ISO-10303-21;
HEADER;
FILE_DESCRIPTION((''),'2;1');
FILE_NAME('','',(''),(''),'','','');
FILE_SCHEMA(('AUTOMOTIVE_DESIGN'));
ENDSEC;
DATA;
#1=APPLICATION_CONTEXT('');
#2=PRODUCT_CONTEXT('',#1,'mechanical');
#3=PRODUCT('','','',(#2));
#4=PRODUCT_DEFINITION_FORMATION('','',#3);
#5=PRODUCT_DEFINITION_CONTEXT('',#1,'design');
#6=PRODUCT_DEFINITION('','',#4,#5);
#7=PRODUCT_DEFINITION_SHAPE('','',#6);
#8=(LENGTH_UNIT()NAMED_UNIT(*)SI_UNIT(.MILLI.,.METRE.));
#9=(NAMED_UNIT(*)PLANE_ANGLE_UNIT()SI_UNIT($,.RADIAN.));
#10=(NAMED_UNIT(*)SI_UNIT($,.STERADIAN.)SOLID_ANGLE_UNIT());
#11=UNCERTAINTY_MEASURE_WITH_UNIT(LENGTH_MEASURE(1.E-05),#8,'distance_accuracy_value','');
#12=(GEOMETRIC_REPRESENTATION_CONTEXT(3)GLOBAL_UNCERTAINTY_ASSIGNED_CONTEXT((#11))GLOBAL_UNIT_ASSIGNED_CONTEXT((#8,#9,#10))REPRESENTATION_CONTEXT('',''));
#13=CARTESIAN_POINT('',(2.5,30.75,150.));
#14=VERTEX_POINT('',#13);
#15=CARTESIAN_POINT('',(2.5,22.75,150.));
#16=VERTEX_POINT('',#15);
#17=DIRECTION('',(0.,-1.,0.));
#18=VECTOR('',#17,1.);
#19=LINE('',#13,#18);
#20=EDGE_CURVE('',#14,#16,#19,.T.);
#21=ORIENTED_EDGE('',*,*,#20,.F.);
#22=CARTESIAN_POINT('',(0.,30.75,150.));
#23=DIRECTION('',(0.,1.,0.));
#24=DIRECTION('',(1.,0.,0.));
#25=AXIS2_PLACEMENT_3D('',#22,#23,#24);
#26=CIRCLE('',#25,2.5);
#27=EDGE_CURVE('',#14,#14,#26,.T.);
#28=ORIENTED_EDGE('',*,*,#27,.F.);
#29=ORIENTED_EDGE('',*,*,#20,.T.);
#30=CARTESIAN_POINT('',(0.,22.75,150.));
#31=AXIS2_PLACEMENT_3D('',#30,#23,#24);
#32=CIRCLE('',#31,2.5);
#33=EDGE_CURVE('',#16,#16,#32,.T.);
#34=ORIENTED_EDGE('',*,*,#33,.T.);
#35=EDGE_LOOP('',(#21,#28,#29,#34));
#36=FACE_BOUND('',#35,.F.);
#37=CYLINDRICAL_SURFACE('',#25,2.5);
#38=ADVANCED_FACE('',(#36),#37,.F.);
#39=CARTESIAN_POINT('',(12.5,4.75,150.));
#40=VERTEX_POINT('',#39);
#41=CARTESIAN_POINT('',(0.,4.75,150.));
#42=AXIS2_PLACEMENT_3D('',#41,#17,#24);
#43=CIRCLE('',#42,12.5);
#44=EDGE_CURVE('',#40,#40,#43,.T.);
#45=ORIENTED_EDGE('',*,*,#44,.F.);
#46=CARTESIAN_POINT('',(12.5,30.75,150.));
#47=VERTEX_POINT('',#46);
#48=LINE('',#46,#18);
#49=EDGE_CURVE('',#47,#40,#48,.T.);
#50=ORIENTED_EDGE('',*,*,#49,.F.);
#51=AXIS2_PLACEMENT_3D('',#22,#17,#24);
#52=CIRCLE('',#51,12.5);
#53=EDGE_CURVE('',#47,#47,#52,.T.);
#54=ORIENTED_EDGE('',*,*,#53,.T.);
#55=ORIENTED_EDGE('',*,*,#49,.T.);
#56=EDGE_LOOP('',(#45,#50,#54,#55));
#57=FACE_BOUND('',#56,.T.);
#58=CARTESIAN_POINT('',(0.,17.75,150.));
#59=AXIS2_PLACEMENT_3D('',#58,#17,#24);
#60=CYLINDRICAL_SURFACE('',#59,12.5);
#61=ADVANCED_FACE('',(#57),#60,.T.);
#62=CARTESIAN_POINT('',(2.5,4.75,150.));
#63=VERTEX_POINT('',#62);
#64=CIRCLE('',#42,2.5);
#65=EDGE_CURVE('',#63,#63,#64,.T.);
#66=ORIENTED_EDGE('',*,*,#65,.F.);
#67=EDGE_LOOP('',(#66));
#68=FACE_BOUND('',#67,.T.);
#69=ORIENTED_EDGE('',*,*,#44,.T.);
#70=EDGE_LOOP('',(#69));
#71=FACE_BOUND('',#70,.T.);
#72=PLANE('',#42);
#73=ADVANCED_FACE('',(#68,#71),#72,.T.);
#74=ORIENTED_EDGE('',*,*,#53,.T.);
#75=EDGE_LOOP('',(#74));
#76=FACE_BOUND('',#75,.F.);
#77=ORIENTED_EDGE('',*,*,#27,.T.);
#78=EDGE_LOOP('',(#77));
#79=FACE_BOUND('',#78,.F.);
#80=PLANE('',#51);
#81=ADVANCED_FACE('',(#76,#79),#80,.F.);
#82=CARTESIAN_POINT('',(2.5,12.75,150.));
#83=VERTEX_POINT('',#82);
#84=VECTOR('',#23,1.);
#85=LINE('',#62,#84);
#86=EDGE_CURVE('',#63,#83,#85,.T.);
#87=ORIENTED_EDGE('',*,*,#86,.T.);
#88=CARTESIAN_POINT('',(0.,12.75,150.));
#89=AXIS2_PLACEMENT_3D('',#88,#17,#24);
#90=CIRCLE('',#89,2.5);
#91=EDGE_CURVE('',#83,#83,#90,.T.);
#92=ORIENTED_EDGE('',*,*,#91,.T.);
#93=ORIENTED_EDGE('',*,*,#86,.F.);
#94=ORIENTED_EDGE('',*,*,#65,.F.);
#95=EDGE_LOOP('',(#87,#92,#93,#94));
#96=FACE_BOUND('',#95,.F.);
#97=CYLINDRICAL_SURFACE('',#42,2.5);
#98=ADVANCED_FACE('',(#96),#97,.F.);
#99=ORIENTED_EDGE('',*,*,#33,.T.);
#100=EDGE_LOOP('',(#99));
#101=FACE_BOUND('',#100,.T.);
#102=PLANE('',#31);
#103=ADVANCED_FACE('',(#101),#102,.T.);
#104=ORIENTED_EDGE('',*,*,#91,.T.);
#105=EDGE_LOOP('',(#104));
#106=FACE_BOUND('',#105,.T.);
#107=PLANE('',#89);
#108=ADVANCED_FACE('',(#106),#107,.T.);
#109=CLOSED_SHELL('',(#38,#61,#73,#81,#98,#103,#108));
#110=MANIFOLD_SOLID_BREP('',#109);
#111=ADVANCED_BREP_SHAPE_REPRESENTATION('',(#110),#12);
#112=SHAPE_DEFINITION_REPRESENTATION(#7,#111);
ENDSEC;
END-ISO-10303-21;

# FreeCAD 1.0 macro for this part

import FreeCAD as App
import Part
import Sketcher

V = App.Vector

doc = App.newDocument("Part")
body = doc.addObject("PartDesign::Body", "Body")

# Sketch on XZ plane
sketch1 = body.newObject("Sketcher::SketchObject", "Sketch")
sketch1.AttachmentSupport = (doc.getObject("XZ_Plane"), [""])
sketch1.MapMode = "FlatFace"
sketch1.addGeometry(Part.Circle(V(0, 0, 0), V(0, 0, 1), 12), False)
sketch1.addConstraint(Sketcher.Constraint("Coincident", 0, 3, -1, 1))
sketch1.addConstraint(Sketcher.Constraint("Diameter", 0, 25.0))
pad1 = body.newObject("PartDesign::Pad", "Pad")
pad1.Profile = sketch1
pad1.Length = 26
pad1.Midplane = True

# Sketch on XZ plane
sketch2 = body.newObject("Sketcher::SketchObject", "Sketch001")
sketch2.AttachmentSupport = (doc.getObject("XZ_Plane"), [""])
sketch2.MapMode = "FlatFace"
sketch2.AttachmentOffset = App.Placement(V(0, 0, 13), App.Rotation())
sketch2.addGeometry(Part.Circle(V(0, 0, 0), V(0, 0, 1), 2.5), False)
sketch2.addConstraint(Sketcher.Constraint("Coincident", 0, 3, -1, 1))
sketch2.addConstraint(Sketcher.Constraint("Diameter", 0, 5.0))
pocket1 = body.newObject("PartDesign::Pocket", "Pocket")
pocket1.Profile = sketch2
pocket1.Length = 8

# Sketch on XZ plane
sketch3 = body.newObject("Sketcher::SketchObject", "Sketch002")
sketch3.AttachmentSupport = (doc.getObject("XZ_Plane"), [""])
sketch3.MapMode = "FlatFace"
sketch3.AttachmentOffset = App.Placement(V(0, 0, -13), App.Rotation())
sketch3.addGeometry(Part.Circle(V(0, 0, 0), V(0, 0, 1), 2.5), False)
sketch3.addConstraint(Sketcher.Constraint("Coincident", 0, 3, -1, 1))
sketch3.addConstraint(Sketcher.Constraint("Diameter", 0, 5.0))
pocket2 = body.newObject("PartDesign::Pocket", "Pocket001")
pocket2.Profile = sketch3
pocket2.Length = 8
pocket2.Reversed = True
body2 = doc.addObject("PartDesign::Body", "Body001")
doc.recompute()

body.Placement = App.Placement(V(0, 17.75, 150), App.Rotation(V(0, 0, 1), 0))
boolean = body2.newObject("PartDesign::Boolean", "Boolean")
boolean.Type = "Fuse"
boolean.addObjects([body])

doc.recompute()
